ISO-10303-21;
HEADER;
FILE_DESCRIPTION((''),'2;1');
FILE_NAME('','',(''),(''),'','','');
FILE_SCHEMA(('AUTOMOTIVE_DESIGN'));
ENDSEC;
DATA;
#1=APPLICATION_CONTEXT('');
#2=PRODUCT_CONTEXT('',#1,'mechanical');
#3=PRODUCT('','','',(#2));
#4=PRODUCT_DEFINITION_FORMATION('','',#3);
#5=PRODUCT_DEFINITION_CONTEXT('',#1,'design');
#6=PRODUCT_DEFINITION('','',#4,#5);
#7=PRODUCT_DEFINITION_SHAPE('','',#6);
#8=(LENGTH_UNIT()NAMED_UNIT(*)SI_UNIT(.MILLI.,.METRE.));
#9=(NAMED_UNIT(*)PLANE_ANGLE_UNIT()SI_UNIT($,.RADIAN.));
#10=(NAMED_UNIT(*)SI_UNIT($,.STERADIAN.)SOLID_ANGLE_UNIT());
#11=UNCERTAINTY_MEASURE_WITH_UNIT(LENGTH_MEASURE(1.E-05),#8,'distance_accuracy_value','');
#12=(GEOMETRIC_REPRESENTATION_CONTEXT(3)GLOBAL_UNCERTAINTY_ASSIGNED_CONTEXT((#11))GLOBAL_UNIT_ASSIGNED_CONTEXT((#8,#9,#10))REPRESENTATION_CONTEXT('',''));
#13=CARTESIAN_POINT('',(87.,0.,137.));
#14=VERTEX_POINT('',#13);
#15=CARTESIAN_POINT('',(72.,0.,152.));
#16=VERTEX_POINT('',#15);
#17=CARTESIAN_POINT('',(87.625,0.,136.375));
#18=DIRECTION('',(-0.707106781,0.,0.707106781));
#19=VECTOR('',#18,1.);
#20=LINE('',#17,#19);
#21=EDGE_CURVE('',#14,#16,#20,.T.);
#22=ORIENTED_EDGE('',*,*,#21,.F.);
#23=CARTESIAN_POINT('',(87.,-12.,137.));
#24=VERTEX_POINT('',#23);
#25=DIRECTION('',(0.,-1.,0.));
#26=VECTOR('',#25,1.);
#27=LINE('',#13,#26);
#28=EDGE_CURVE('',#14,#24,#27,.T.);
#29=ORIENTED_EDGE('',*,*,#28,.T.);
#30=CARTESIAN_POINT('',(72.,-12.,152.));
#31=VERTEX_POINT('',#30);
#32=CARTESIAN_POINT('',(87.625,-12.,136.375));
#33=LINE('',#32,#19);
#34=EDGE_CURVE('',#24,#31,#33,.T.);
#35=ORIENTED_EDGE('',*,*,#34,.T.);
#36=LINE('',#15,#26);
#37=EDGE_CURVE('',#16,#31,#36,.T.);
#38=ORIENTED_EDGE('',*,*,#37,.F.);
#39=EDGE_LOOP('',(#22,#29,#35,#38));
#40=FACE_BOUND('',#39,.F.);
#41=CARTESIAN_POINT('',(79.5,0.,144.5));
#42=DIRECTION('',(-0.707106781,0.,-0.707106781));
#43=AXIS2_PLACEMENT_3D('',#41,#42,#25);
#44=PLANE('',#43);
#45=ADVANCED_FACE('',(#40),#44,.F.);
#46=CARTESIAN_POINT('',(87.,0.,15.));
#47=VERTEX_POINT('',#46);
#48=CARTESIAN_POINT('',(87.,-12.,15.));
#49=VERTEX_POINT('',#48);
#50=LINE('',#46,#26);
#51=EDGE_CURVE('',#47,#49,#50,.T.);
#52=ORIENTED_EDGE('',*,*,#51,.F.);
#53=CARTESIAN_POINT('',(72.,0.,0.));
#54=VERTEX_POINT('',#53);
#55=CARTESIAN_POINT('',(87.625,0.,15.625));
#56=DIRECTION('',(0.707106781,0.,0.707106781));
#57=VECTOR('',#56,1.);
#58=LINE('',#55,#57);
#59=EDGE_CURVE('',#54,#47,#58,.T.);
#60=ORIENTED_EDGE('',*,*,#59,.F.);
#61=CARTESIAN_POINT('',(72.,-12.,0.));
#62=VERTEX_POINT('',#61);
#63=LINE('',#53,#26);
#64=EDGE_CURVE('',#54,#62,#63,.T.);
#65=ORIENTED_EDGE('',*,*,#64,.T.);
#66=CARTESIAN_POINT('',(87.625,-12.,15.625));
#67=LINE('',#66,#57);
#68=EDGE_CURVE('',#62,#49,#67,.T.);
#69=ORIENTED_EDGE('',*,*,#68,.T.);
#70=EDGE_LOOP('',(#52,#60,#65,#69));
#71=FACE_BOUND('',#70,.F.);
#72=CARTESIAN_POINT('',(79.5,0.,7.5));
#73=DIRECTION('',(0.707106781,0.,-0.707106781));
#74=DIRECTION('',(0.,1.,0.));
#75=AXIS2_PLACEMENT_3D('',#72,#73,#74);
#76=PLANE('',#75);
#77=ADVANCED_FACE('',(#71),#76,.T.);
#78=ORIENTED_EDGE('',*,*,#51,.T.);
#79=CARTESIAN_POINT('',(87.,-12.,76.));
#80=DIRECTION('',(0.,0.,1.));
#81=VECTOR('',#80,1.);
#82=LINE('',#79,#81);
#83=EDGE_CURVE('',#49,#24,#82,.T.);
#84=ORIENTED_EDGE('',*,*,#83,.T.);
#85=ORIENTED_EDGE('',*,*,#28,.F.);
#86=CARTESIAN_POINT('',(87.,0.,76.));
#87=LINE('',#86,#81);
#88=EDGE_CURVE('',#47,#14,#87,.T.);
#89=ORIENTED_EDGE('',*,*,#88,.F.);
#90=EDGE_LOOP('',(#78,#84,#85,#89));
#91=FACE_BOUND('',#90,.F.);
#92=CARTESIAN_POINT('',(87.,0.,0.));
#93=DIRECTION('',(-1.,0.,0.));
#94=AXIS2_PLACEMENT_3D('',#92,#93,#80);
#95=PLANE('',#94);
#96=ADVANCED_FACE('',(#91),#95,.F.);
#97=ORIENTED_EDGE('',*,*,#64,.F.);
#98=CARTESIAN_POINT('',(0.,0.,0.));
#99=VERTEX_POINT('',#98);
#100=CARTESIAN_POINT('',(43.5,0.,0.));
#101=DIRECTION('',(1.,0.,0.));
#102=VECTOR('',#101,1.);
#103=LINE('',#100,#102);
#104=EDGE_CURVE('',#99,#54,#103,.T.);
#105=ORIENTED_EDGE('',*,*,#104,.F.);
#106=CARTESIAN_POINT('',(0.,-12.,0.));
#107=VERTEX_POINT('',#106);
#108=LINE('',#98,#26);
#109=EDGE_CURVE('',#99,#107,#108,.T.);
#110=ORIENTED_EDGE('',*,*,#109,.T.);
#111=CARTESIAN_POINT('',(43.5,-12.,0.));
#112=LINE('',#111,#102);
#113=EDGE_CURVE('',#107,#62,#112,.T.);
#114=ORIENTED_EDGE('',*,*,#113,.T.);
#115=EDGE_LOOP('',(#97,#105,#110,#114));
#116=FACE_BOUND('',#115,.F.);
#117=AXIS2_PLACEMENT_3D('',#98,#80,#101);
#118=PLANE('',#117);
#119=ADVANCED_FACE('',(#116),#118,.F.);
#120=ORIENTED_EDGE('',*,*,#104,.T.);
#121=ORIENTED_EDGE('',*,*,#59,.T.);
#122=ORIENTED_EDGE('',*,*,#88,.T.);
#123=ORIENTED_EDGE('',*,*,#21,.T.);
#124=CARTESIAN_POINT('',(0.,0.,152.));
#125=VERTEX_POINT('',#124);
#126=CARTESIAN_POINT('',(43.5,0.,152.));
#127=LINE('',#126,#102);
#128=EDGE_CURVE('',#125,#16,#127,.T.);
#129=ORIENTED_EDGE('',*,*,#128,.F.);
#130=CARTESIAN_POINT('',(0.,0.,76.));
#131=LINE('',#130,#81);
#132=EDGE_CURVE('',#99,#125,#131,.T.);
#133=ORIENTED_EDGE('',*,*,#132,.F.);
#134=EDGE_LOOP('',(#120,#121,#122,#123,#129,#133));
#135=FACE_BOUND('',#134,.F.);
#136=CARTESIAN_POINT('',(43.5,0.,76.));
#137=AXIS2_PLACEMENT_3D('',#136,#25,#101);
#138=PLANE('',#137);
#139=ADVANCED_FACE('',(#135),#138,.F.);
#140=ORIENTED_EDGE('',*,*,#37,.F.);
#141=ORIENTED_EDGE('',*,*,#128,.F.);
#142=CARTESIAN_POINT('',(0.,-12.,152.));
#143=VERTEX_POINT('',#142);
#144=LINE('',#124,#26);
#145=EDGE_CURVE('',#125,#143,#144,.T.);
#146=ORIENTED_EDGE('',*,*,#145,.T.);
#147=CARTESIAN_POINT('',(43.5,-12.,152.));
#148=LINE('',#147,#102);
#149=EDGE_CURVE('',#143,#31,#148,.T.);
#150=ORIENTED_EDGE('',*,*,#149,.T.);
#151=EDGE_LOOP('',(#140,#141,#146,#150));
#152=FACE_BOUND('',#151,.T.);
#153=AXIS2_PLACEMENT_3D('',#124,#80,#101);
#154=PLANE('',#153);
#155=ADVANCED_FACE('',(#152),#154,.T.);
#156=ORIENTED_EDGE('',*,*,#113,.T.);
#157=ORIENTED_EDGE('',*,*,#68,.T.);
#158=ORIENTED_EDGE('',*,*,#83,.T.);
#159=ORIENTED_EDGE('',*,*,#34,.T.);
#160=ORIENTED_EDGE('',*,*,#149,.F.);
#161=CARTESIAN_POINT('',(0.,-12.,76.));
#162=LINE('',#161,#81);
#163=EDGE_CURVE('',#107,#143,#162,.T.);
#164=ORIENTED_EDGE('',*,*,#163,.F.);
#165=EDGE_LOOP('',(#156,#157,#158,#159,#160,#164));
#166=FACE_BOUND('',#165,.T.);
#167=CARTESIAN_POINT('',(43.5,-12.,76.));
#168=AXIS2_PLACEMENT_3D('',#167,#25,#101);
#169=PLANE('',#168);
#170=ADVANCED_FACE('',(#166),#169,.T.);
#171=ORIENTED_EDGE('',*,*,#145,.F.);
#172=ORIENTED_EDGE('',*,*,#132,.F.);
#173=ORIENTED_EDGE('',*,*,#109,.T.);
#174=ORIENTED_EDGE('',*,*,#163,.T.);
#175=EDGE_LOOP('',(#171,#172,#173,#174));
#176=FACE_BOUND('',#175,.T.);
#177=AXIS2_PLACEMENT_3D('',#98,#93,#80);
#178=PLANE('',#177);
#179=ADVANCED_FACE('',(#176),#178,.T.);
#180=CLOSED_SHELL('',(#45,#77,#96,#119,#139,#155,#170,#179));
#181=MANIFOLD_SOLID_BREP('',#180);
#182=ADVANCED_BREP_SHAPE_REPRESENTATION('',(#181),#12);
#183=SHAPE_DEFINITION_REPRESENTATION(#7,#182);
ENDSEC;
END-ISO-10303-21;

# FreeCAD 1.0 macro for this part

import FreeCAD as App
import Part
import Sketcher


def edges_at(feature, points):
    """Names of the edges that pass closest to the given points."""
    edges = feature.Shape.Edges
    near = lambda p: min(range(len(edges)), key=lambda i: edges[i].distToShape(Part.Vertex(*p))[0])
    return sorted({f"Edge{near(p) + 1}" for p in points})

doc = App.newDocument("Part")
body = doc.addObject("PartDesign::Body", "Body")

# Sketch on XZ plane
sketch1 = doc.addObject("Sketcher::SketchObject", "Sketch")
body.addObject(sketch1)
sketch1.AttachmentSupport = (doc.XZ_Plane, [""])
sketch1.MapMode = "FlatFace"
sketch1.addGeometry([
    Part.LineSegment(App.Vector(0, 152, 0), App.Vector(0, 0, 0)),
    Part.LineSegment(App.Vector(0, 0, 0), App.Vector(87, 0, 0)),
    Part.LineSegment(App.Vector(87, 0, 0), App.Vector(87, 152, 0)),
    Part.LineSegment(App.Vector(87, 152, 0), App.Vector(0, 152, 0)),
], False)
sketch1.addConstraint([
    Sketcher.Constraint("Coincident", 0, 2, 1, 1),
    Sketcher.Constraint("Coincident", 1, 2, 2, 1),
    Sketcher.Constraint("Coincident", 2, 2, 3, 1),
    Sketcher.Constraint("Coincident", 3, 2, 0, 1),
    Sketcher.Constraint("Vertical", 0),
    Sketcher.Constraint("Horizontal", 1),
    Sketcher.Constraint("Vertical", 2),
    Sketcher.Constraint("Horizontal", 3),
    Sketcher.Constraint("Coincident", 0, 2, -1, 1),
    Sketcher.Constraint("DistanceX", 1, 1, 1, 2, 87.0),
    Sketcher.Constraint("DistanceY", 0, 2, 0, 1, 152.0),
])
pad1 = doc.addObject("PartDesign::Pad", "Pad")
body.addObject(pad1)
pad1.Profile = sketch1
pad1.Length = 12
doc.recompute()

chamfer = doc.addObject("PartDesign::Chamfer", "Chamfer")
body.addObject(chamfer)
chamfer.Base = (pad1, edges_at(pad1, [(87, -6, 152), (87, -6, 0)]))
chamfer.Size = 15

doc.recompute()
